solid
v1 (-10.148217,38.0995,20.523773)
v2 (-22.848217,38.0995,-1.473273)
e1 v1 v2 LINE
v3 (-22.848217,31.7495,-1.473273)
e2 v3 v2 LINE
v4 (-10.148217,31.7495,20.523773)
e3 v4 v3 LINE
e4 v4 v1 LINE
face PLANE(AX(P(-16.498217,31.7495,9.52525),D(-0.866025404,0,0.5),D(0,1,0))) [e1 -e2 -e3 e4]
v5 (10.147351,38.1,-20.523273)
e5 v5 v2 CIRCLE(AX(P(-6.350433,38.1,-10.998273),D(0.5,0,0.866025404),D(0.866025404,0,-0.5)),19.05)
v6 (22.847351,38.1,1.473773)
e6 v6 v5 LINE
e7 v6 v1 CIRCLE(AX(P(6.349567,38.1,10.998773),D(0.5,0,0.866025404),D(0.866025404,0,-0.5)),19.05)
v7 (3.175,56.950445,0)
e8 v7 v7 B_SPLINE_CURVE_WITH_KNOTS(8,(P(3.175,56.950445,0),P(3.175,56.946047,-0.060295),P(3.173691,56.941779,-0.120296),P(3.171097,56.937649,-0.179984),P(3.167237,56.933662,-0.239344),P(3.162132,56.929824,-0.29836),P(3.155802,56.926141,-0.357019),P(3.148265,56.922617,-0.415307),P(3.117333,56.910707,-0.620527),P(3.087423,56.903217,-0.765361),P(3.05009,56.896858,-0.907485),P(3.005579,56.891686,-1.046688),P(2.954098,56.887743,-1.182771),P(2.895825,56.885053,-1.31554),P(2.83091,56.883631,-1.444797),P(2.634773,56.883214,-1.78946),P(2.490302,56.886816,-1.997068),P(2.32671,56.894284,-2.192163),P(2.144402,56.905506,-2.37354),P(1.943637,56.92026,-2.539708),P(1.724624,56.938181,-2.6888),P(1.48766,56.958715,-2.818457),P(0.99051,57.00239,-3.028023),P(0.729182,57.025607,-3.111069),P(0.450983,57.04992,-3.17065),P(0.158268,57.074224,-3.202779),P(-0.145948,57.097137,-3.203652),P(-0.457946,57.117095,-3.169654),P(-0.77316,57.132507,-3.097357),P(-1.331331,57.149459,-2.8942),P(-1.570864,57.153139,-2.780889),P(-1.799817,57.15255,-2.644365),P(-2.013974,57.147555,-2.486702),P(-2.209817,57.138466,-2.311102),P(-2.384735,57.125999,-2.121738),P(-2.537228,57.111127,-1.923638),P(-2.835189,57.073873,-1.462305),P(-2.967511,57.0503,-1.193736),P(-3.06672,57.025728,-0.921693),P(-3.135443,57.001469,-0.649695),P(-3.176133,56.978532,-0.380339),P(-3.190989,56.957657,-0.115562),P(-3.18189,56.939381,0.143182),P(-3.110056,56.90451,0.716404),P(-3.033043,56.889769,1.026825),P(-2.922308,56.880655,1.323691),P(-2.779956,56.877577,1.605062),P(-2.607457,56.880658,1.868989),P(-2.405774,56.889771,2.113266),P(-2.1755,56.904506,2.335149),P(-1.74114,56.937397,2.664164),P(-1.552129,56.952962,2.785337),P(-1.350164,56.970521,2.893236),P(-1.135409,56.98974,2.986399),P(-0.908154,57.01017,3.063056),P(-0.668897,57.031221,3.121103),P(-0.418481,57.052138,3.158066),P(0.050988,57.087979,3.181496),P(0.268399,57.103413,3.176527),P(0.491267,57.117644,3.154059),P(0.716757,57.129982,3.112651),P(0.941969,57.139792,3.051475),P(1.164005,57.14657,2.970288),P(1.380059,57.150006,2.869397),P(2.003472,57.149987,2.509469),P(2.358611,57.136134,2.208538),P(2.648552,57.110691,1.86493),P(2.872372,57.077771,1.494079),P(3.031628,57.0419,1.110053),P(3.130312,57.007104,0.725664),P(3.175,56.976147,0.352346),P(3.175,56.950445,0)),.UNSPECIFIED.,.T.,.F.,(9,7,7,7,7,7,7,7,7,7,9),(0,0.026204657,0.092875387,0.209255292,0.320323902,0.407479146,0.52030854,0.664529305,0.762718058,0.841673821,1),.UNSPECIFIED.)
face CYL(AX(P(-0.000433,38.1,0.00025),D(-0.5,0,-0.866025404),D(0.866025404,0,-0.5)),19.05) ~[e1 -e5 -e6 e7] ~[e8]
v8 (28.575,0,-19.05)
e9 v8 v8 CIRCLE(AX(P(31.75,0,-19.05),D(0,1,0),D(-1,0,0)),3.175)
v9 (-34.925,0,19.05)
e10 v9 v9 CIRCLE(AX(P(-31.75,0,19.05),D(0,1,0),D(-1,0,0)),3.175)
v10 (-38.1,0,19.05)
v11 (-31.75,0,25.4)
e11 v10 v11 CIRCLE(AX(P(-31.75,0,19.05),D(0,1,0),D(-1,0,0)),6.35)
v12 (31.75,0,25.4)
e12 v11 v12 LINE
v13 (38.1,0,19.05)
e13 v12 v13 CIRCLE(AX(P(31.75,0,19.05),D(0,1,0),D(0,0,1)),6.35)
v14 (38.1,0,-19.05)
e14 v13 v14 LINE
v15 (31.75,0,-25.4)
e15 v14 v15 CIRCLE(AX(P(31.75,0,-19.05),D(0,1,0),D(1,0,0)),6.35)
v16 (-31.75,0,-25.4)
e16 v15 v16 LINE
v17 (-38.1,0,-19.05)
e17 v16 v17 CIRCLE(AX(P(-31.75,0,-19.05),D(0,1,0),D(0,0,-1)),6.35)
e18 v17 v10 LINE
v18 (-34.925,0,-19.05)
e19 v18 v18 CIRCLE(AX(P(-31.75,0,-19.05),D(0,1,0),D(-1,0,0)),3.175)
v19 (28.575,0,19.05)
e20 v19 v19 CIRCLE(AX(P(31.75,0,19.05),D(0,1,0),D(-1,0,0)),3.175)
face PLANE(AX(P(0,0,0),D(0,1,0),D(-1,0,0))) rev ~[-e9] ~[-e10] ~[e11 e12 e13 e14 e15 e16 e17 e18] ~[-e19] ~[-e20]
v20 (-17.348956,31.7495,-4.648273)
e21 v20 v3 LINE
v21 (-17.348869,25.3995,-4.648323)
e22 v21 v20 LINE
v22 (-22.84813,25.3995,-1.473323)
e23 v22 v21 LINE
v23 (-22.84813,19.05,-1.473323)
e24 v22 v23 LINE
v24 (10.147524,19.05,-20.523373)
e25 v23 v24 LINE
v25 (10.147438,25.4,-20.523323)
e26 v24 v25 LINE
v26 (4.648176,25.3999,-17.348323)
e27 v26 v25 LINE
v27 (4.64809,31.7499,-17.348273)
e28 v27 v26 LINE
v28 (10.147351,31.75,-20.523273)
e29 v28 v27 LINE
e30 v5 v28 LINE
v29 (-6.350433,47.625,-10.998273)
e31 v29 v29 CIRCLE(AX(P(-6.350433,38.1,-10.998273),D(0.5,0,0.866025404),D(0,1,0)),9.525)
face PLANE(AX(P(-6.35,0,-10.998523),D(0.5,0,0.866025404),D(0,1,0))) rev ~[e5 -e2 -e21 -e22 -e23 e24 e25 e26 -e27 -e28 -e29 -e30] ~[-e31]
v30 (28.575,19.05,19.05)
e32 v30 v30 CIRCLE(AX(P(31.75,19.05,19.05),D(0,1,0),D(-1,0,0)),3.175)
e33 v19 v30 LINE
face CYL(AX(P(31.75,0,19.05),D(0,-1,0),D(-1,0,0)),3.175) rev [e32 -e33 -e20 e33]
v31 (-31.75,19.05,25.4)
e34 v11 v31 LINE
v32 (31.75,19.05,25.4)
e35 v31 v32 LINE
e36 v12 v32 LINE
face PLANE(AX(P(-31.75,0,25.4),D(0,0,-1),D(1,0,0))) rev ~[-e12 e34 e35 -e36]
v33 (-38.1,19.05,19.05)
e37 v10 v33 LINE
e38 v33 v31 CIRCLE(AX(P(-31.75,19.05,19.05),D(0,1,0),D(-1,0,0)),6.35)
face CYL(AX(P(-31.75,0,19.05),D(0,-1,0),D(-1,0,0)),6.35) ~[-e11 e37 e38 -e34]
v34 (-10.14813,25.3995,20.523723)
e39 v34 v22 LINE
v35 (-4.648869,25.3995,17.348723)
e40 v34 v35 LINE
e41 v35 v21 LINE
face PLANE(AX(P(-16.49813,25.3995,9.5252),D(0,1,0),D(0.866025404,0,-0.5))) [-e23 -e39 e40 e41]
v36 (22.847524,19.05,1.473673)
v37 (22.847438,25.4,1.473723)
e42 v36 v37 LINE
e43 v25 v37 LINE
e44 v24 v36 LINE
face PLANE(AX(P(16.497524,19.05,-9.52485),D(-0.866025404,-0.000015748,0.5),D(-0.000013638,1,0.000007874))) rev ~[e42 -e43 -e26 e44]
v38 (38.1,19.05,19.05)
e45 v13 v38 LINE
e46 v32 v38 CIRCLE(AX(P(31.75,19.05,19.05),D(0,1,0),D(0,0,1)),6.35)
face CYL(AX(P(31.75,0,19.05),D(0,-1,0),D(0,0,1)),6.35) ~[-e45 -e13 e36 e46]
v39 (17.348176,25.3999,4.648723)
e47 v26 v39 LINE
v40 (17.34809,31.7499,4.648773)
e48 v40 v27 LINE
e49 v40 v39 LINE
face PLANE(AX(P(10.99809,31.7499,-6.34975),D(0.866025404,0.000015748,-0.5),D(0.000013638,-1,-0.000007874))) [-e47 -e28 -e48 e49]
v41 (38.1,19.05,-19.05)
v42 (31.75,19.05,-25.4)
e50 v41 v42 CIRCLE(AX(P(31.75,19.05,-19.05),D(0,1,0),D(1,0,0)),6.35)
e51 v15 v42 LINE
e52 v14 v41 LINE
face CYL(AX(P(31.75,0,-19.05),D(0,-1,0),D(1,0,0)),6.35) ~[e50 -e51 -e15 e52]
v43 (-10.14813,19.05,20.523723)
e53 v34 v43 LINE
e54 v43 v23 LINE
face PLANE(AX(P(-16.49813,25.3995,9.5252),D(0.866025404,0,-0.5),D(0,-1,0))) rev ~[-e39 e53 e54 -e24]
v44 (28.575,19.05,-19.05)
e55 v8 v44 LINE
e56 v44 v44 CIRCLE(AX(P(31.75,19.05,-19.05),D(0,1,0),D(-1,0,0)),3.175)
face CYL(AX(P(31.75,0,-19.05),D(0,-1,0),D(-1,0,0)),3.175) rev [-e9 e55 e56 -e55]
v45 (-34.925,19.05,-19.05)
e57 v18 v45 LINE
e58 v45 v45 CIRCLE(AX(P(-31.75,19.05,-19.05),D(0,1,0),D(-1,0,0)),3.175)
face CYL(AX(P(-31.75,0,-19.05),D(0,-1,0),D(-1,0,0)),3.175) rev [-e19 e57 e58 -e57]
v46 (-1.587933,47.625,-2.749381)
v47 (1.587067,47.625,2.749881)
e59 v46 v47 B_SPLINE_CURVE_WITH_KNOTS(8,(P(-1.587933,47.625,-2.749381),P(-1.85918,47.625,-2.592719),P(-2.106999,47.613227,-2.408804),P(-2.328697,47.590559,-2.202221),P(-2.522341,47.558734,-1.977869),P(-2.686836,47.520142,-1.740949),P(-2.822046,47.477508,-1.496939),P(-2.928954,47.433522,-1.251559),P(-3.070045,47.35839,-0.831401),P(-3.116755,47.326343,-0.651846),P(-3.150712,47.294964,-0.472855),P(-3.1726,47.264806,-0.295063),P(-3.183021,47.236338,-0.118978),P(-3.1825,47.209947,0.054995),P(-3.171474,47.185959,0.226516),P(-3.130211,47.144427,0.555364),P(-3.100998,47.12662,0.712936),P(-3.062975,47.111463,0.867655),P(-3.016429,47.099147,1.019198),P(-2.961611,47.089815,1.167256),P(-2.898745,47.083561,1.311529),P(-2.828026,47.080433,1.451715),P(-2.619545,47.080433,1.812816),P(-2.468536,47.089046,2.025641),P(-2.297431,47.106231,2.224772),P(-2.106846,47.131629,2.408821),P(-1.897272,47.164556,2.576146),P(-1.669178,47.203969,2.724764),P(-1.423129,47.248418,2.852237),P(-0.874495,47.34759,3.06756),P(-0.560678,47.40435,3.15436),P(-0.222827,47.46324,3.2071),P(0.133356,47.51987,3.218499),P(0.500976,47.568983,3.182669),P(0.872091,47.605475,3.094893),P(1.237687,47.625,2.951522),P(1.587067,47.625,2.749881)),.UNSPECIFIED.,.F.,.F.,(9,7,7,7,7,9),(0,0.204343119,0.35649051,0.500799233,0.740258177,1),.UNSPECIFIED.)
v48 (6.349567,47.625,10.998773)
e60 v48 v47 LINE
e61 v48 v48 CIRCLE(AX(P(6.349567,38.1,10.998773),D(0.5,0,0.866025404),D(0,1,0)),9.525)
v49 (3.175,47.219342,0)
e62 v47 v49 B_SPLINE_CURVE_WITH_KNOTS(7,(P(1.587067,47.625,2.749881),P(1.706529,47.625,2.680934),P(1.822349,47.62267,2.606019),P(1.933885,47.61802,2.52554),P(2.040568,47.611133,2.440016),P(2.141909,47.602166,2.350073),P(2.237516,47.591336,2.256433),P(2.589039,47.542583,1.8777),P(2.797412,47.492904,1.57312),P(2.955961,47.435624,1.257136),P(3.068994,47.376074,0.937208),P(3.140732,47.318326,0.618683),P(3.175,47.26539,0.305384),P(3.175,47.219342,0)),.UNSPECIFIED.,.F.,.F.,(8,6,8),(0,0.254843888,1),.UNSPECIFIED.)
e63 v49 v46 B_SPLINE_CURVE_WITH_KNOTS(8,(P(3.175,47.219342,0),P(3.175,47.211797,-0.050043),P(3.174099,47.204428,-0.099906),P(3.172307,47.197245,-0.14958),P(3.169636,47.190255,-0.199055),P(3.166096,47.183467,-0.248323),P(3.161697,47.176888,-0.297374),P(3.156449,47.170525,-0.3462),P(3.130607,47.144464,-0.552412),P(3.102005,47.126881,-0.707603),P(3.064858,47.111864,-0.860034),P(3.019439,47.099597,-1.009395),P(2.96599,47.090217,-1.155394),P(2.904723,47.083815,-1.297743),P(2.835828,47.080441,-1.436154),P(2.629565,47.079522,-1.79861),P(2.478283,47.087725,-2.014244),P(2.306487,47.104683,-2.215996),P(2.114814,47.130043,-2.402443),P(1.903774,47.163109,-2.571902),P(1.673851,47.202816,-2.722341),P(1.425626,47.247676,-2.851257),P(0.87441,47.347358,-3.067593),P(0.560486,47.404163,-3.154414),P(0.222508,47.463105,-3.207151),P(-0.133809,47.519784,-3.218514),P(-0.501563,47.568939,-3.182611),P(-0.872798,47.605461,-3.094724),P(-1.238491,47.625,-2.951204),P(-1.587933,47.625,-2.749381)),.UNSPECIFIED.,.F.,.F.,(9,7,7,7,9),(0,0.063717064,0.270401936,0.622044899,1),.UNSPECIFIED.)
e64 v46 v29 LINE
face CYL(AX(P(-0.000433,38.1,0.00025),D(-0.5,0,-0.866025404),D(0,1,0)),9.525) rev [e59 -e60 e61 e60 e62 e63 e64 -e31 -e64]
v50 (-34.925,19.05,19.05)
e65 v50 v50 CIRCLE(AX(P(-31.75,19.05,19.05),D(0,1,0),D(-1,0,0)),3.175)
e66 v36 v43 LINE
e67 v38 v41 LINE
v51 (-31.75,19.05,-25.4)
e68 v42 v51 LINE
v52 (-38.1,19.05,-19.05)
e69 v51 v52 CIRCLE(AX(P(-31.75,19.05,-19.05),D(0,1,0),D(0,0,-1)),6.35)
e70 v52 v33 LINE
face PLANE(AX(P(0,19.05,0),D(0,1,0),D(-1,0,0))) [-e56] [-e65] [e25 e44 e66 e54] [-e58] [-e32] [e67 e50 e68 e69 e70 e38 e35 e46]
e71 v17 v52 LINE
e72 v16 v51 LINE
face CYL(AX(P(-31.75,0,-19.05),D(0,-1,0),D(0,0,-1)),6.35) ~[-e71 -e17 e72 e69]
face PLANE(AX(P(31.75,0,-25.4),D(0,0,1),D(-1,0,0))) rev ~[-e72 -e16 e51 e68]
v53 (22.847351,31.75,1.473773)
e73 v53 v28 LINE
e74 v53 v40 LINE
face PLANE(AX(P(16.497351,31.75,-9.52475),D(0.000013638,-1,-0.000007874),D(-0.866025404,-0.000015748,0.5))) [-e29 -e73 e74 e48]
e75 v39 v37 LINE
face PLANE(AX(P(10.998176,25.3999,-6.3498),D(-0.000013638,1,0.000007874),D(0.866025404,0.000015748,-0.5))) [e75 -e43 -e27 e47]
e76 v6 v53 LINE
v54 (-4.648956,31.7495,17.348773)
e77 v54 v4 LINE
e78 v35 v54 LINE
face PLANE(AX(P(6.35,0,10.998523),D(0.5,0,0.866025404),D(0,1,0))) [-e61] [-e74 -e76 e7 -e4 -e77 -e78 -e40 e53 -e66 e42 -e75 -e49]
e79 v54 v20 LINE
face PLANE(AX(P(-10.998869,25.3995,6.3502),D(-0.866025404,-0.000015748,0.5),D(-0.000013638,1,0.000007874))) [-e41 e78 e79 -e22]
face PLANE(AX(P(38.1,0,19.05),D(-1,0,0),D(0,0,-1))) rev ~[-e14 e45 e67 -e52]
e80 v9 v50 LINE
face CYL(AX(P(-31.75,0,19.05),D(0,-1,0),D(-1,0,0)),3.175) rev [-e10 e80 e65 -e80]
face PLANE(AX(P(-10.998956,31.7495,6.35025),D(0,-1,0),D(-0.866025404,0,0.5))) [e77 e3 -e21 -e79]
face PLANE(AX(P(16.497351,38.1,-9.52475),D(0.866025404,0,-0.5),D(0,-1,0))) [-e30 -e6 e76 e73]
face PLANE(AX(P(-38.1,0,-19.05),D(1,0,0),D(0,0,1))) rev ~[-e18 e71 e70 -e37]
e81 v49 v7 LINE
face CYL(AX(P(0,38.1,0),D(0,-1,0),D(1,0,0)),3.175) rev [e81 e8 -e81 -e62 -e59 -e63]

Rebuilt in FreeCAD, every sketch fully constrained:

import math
import FreeCAD as App
import Part
import Sketcher

V = App.Vector
Q = App.Units.Quantity

doc = App.newDocument("Part")
body = doc.addObject("PartDesign::Body", "Body")

# Sketch on XZ plane
sketch1 = body.newObject("Sketcher::SketchObject", "Sketch")
sketch1.AttachmentSupport = (doc.getObject("XZ_Plane"), [""])
sketch1.MapMode = "FlatFace"
sketch1.addGeometry([
    Part.ArcOfCircle(Part.Circle(V(-31.8, 19.1, 0), V(0, 0, 1), 6.4), math.radians(90), math.radians(180)),  # 0
    Part.LineSegment(V(-31.8, 25.4, 0), V(31.8, 25.4, 0)),  # 1
    Part.ArcOfCircle(Part.Circle(V(31.8, 19.1, 0), V(0, 0, 1), 6.3), math.radians(0), math.radians(90)),  # 2
    Part.LineSegment(V(38.1, 19.1, 0), V(38.1, -19.1, 0)),  # 3
    Part.ArcOfCircle(Part.Circle(V(31.8, -19.1, 0), V(0, 0, 1), 6.4), math.radians(-90), math.radians(0)),  # 4
    Part.LineSegment(V(31.8, -25.4, 0), V(-31.8, -25.4, 0)),  # 5
    Part.ArcOfCircle(Part.Circle(V(-31.8, -19.1, 0), V(0, 0, 1), 6.3), math.radians(180), math.radians(270)),  # 6
    Part.LineSegment(V(-38.1, -19.1, 0), V(-38.1, 19.1, 0)),  # 7
    Part.Circle(V(31.8, -19.1, 0), V(0, 0, 1), 3.2),  # 8
    Part.Circle(V(-31.8, -19.1, 0), V(0, 0, 1), 3.2),  # 9
    Part.Circle(V(31.8, 19.1, 0), V(0, 0, 1), 3.2),  # 10
    Part.Circle(V(-31.8, 19.1, 0), V(0, 0, 1), 3.2),  # 11
], False)
sketch1.addConstraint([
    Sketcher.Constraint("Tangent", 0, 1, 1, 1),
    Sketcher.Constraint("Tangent", 1, 2, 2, 2),
    Sketcher.Constraint("Tangent", 2, 1, 3, 1),
    Sketcher.Constraint("Tangent", 3, 2, 4, 2),
    Sketcher.Constraint("Tangent", 4, 1, 5, 1),
    Sketcher.Constraint("Tangent", 5, 2, 6, 2),
    Sketcher.Constraint("Tangent", 6, 1, 7, 1),
    Sketcher.Constraint("Tangent", 7, 2, 0, 2),
    Sketcher.Constraint("Horizontal", 1),
    Sketcher.Constraint("Vertical", 3),
    Sketcher.Constraint("Horizontal", 5),
    Sketcher.Constraint("Vertical", 7),
    Sketcher.Constraint("Coincident", 8, 3, 4, 3),
    Sketcher.Constraint("Coincident", 9, 3, 6, 3),
    Sketcher.Constraint("Coincident", 10, 3, 2, 3),
    Sketcher.Constraint("Coincident", 11, 3, 0, 3),
    Sketcher.Constraint("Equal", 0, 2),
    Sketcher.Constraint("Equal", 2, 4),
    Sketcher.Constraint("Equal", 4, 6),
    Sketcher.Constraint("Equal", 8, 9),
    Sketcher.Constraint("Equal", 9, 10),
    Sketcher.Constraint("Equal", 10, 11),
    Sketcher.Constraint("Symmetric", 0, 3, 4, 3, -1, 1),
    Sketcher.Constraint("Diameter", 8, Q("0.25 in")),
    Sketcher.Constraint("Radius", 0, Q("0.25 in")),
    Sketcher.Constraint("DistanceY", 3, 2, 3, 1, Q("1.5 in")),
    Sketcher.Constraint("DistanceX", -1, 1, 2, 1, Q("1.5 in")),
])
pad1 = body.newObject("PartDesign::Pad", "Pad")
pad1.Profile = sketch1
pad1.Length = Q("0.75 in")
pad1.Reversed = True

# Sketch on an angled plane
sketch2 = body.newObject("Sketcher::SketchObject", "Sketch001")
sketch2.Placement = App.Placement(V(0, 0, 0), App.Rotation(V(0, 1, 0), V(-0.866025404, 0, 0.5), V(0.5, 0, 0.866025404), "ZXY"))
sketch2.addGeometry([
    Part.LineSegment(V(19, 19, 0), V(19, -19, 0)),  # 0
    Part.LineSegment(V(19, -19, 0), V(25, -19, 0)),  # 1
    Part.LineSegment(V(25, -19, 0), V(25, -13, 0)),  # 2
    Part.LineSegment(V(25, -13, 0), V(32, -13, 0)),  # 3
    Part.LineSegment(V(32, -13, 0), V(32, -19, 0)),  # 4
    Part.LineSegment(V(32, -19, 0), V(38, -19, 0)),  # 5
    Part.ArcOfCircle(Part.Circle(V(38, 0, 0), V(0, 0, 1), 19), math.radians(-90), math.radians(90)),  # 6
    Part.LineSegment(V(38, 19, 0), V(32, 19, 0)),  # 7
    Part.LineSegment(V(32, 19, 0), V(32, 13, 0)),  # 8
    Part.LineSegment(V(32, 13, 0), V(25, 13, 0)),  # 9
    Part.LineSegment(V(25, 13, 0), V(25, 19, 0)),  # 10
    Part.LineSegment(V(25, 19, 0), V(19, 19, 0)),  # 11
    Part.Circle(V(38, 0, 0), V(0, 0, 1), 10),  # 12
], False)
sketch2.addConstraint([
    Sketcher.Constraint("Coincident", 0, 2, 1, 1),
    Sketcher.Constraint("Coincident", 1, 2, 2, 1),
    Sketcher.Constraint("Coincident", 2, 2, 3, 1),
    Sketcher.Constraint("Coincident", 3, 2, 4, 1),
    Sketcher.Constraint("Coincident", 4, 2, 5, 1),
    Sketcher.Constraint("Tangent", 5, 2, 6, 1),
    Sketcher.Constraint("Tangent", 6, 2, 7, 1),
    Sketcher.Constraint("Coincident", 7, 2, 8, 1),
    Sketcher.Constraint("Coincident", 8, 2, 9, 1),
    Sketcher.Constraint("Coincident", 9, 2, 10, 1),
    Sketcher.Constraint("Coincident", 10, 2, 11, 1),
    Sketcher.Constraint("Coincident", 11, 2, 0, 1),
    Sketcher.Constraint("Vertical", 0),
    Sketcher.Constraint("Horizontal", 1),
    Sketcher.Constraint("Vertical", 2),
    Sketcher.Constraint("Horizontal", 3),
    Sketcher.Constraint("Vertical", 4),
    Sketcher.Constraint("Horizontal", 5),
    Sketcher.Constraint("Horizontal", 7),
    Sketcher.Constraint("Vertical", 8),
    Sketcher.Constraint("Horizontal", 9),
    Sketcher.Constraint("Vertical", 10),
    Sketcher.Constraint("Horizontal", 11),
    Sketcher.Constraint("Coincident", 12, 3, 6, 3),
    Sketcher.Constraint("Horizontal", 1, 2, 4, 2),
    Sketcher.Constraint("Horizontal", 7, 2, 10, 2),
    Sketcher.Constraint("Equal", 1, 3),
    Sketcher.Constraint("Equal", 3, 5),
    Sketcher.Constraint("Equal", 5, 7),
    Sketcher.Constraint("Equal", 7, 9),
    Sketcher.Constraint("Equal", 9, 2),
    Sketcher.Constraint("Equal", 4, 8),
    Sketcher.Constraint("Diameter", 12, Q("0.75 in")),
    Sketcher.Constraint("Radius", 6, Q("0.75 in")),
    Sketcher.Constraint("DistanceX", 1, 1, 1, 2, Q("0.25 in")),
    Sketcher.Constraint("DistanceX", -1, 1, 6, 3, Q("1.5 in")),
    Sketcher.Constraint("DistanceY", 0, 2, -1, 1, Q("0.75 in")),
])
pad2 = body.newObject("PartDesign::Pad", "Pad001")
pad2.Profile = sketch2
pad2.Length = Q("1 in")
pad2.Midplane = True

# Sketch on XZ plane
sketch3 = body.newObject("Sketcher::SketchObject", "Sketch002")
sketch3.AttachmentSupport = (doc.getObject("XZ_Plane"), [""])
sketch3.MapMode = "FlatFace"
sketch3.AttachmentOffset = App.Placement(V(0, 0, -1.5 * 25.4), App.Rotation())
sketch3.addGeometry(Part.Circle(V(0, 0, 0), V(0, 0, 1), 3.2), False)
sketch3.addConstraint([
    Sketcher.Constraint("Coincident", 0, 3, -1, 1),
    Sketcher.Constraint("Diameter", 0, Q("0.25 in")),
])
pocket1 = body.newObject("PartDesign::Pocket", "Pocket")
pocket1.Profile = sketch3
pocket1.Length = Q("1 in")

doc.recompute()
